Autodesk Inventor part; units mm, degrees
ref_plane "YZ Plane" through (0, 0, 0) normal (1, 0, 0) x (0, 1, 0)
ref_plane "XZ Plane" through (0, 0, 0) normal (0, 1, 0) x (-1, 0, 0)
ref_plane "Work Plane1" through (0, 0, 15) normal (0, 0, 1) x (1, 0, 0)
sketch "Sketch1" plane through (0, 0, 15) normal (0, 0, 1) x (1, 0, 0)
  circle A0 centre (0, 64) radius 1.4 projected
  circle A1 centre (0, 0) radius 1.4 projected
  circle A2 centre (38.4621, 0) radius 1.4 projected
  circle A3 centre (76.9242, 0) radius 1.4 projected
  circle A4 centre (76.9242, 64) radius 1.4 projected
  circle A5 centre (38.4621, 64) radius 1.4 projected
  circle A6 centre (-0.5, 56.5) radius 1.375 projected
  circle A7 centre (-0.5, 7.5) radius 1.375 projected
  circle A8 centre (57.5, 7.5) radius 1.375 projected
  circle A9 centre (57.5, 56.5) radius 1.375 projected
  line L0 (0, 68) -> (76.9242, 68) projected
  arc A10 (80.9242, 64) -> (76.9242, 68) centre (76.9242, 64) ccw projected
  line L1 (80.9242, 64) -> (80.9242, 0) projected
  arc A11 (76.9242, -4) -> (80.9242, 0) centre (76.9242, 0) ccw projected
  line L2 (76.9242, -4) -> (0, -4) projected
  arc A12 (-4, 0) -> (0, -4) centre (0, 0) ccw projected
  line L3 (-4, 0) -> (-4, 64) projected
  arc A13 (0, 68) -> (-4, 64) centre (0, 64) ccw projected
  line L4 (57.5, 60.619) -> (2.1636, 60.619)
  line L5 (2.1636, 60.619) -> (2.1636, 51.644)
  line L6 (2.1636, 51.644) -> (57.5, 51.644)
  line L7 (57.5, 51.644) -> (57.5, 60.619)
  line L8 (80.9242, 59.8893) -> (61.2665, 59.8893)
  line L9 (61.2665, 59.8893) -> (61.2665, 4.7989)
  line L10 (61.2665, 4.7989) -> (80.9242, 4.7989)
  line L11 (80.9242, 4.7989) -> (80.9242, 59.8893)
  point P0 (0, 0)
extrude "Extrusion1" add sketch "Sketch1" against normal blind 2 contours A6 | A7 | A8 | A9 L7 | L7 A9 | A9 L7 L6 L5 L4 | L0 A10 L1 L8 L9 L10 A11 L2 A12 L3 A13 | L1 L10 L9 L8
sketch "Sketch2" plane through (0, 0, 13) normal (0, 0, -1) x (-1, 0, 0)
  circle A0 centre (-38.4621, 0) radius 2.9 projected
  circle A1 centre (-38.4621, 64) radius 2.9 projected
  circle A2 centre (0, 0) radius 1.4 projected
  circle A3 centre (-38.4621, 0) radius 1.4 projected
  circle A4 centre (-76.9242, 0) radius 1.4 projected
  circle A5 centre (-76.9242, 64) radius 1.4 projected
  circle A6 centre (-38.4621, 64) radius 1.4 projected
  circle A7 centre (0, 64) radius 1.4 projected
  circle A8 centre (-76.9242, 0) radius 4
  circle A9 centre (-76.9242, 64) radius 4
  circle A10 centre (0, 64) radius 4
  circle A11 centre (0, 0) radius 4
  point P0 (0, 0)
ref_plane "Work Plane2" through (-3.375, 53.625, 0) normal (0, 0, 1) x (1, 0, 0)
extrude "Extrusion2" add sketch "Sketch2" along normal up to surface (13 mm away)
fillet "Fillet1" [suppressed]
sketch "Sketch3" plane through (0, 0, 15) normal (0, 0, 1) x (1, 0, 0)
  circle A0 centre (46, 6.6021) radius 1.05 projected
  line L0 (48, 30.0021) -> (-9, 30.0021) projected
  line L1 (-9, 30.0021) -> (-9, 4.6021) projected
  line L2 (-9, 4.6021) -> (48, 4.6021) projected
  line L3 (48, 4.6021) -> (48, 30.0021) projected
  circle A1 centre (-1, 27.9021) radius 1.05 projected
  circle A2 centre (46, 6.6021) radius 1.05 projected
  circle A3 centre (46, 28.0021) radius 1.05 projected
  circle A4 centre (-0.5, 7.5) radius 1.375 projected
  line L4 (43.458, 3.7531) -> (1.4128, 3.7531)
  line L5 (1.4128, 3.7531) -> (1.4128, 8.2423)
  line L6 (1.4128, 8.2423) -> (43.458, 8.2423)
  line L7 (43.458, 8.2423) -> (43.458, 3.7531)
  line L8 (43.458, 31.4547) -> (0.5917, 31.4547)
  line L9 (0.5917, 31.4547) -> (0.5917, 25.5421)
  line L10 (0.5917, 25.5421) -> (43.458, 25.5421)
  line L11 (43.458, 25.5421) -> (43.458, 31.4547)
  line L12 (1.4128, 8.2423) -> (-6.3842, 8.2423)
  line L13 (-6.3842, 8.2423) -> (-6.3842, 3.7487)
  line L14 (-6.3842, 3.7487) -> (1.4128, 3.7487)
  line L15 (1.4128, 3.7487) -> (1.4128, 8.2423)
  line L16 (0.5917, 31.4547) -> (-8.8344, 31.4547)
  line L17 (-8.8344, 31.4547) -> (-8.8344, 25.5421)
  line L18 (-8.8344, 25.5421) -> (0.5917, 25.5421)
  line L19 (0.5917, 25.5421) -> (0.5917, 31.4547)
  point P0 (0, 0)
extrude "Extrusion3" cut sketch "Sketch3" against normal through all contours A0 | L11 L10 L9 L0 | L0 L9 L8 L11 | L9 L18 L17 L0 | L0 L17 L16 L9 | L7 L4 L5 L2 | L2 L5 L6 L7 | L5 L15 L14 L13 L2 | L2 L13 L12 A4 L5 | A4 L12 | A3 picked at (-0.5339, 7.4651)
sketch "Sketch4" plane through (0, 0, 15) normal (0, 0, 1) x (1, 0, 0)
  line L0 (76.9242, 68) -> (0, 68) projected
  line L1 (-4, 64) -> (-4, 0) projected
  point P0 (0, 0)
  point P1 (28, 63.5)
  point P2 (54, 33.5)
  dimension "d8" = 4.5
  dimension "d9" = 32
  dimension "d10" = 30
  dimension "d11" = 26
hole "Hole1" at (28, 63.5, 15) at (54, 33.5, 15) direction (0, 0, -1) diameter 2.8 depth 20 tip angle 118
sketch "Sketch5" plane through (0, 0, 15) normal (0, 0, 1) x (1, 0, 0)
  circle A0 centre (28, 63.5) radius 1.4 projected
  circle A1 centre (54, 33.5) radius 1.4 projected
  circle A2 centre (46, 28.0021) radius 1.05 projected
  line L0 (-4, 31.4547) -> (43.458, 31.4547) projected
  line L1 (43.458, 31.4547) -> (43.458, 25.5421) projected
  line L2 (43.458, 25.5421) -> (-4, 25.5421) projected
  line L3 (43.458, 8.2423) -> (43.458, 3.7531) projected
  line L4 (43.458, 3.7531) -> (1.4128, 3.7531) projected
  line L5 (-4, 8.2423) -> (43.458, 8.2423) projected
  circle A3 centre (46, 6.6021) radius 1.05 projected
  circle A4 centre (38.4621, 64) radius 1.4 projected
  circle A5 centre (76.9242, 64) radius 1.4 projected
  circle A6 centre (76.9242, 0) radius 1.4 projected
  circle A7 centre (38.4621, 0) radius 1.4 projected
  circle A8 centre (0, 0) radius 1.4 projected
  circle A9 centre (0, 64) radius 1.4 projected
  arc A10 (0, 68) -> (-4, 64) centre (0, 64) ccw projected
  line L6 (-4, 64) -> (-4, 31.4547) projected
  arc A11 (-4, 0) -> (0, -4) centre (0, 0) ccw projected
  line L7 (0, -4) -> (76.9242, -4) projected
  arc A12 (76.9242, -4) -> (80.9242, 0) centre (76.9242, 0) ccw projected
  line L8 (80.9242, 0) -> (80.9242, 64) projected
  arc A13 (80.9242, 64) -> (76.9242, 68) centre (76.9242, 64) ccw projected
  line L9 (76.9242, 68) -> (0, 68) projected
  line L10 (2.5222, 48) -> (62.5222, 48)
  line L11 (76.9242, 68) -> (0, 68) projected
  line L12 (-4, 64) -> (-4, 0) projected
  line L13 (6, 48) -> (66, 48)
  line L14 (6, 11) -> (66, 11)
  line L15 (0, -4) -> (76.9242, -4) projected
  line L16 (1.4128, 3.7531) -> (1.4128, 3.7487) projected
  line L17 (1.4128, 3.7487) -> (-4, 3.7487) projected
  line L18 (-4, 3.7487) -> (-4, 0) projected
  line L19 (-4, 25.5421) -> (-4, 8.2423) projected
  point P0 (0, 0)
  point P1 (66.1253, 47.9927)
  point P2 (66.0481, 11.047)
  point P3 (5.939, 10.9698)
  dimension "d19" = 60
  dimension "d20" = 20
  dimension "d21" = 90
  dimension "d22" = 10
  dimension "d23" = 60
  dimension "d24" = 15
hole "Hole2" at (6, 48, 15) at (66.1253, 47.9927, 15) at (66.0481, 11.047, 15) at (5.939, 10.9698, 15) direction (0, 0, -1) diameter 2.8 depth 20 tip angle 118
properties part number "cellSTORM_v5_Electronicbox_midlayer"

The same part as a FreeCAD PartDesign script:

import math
import FreeCAD as App
import Part
import Sketcher
from FreeCAD import Vector


def add_polygon(sketch, points):
    """Adds a closed chain of lines whose ends are joined by coincident constraints."""
    first, n = sketch.GeometryCount, len(points)
    for a, b in zip(points, points[1:] + points[:1]):
        sketch.addGeometry(Part.LineSegment(App.Vector(*a, 0), App.Vector(*b, 0)), False)
    for i in range(n):
        sketch.addConstraint(Sketcher.Constraint("Coincident", first + i, 2, first + (i + 1) % n, 1))

doc = App.newDocument("Part")
params = doc.addObject("Spreadsheet::Sheet", "Params")
for row, (alias, value) in enumerate([
    ("sketch1_radius", "4 mm"),
    ("sketch1_diameter", "2.8 mm"),
    ("sketch1_height", "64 mm"),
    ("pad1_length", "2 mm"),
    ("sketch2_diameter", "8 mm"),
    ("sketch2_diameter2", "5.8 mm"),
    ("sketch2_diameter3", "2.8 mm"),
    ("pad2_length", "13 mm"),
    ("sketch3_diameter", "2.1 mm"),
    ("sketch4_diameter", "2.8 mm"),
    ("hole_diameter", "2.8 mm"),
    ("hole_depth", "20 mm"),
    ("sketch5_diameter", "2.8 mm"),
    ("hole2_diameter", "2.8 mm"),
    ("hole2_depth", "20 mm"),
], start=1):
    params.set(f"A{row}", alias)
    params.set(f"B{row}", "=" + value)
    params.setAlias(f"B{row}", alias)

body = doc.addObject("PartDesign::Body", "Body")
body.AllowCompound = True

# Sketch on XY plane
sketch1 = body.newObject("Sketcher::SketchObject", "Sketch")
sketch1.AttachmentSupport = (doc.getObject("XY_Plane"), [""])
sketch1.MapMode = "FlatFace"
sketch1.AttachmentOffset = App.Placement(Vector(0, 0, 15), App.Rotation())
sketch1.addGeometry(Part.LineSegment(Vector(76.9242, 68, 0), Vector(0, 68, 0)), False)
sketch1.addGeometry(Part.ArcOfCircle(Part.Circle(Vector(0, 64, 0), Vector(0, 0, 1), 4), math.radians(90), math.radians(180)), False)
sketch1.addGeometry(Part.LineSegment(Vector(-4, 64, 0), Vector(-4, 0, 0)), False)
sketch1.addGeometry(Part.ArcOfCircle(Part.Circle(Vector(0, 0, 0), Vector(0, 0, 1), 4), math.radians(180), math.radians(270)), False)
sketch1.addGeometry(Part.LineSegment(Vector(0, -4, 0), Vector(76.9242, -4, 0)), False)
sketch1.addGeometry(Part.ArcOfCircle(Part.Circle(Vector(76.9242, 0, 0), Vector(0, 0, 1), 4), math.radians(-90), math.radians(0)), False)
sketch1.addGeometry(Part.LineSegment(Vector(80.9242, 0, 0), Vector(80.9242, 64, 0)), False)
sketch1.addGeometry(Part.ArcOfCircle(Part.Circle(Vector(76.9242, 64, 0), Vector(0, 0, 1), 4), math.radians(0), math.radians(90)), False)
sketch1.addGeometry(Part.Circle(Vector(0, 0, 0), Vector(0, 0, 1), 1.4), False)
sketch1.addGeometry(Part.Circle(Vector(38.4621, 0, 0), Vector(0, 0, 1), 1.4), False)
sketch1.addGeometry(Part.Circle(Vector(76.9242, 0, 0), Vector(0, 0, 1), 1.4), False)
sketch1.addGeometry(Part.Circle(Vector(76.9242, 64, 0), Vector(0, 0, 1), 1.4), False)
sketch1.addGeometry(Part.Circle(Vector(0, 64, 0), Vector(0, 0, 1), 1.4), False)
sketch1.addGeometry(Part.Circle(Vector(38.4621, 64, 0), Vector(0, 0, 1), 1.4), False)
sketch1.addConstraint(Sketcher.Constraint("Tangent", 0, 2, 1, 1))
sketch1.addConstraint(Sketcher.Constraint("Tangent", 1, 2, 2, 1))
sketch1.addConstraint(Sketcher.Constraint("Tangent", 2, 2, 3, 1))
sketch1.addConstraint(Sketcher.Constraint("Tangent", 3, 2, 4, 1))
sketch1.addConstraint(Sketcher.Constraint("Tangent", 4, 2, 5, 1))
sketch1.addConstraint(Sketcher.Constraint("Tangent", 5, 2, 6, 1))
sketch1.addConstraint(Sketcher.Constraint("Tangent", 6, 2, 7, 1))
sketch1.addConstraint(Sketcher.Constraint("Tangent", 7, 2, 0, 1))
sketch1.addConstraint(Sketcher.Constraint("Horizontal", 0))
sketch1.addConstraint(Sketcher.Constraint("Vertical", 2))
sketch1.addConstraint(Sketcher.Constraint("Horizontal", 4))
sketch1.addConstraint(Sketcher.Constraint("Vertical", 6))
sketch1.addConstraint(Sketcher.Constraint("Coincident", 3, 3, -1, 1))
sketch1.addConstraint(Sketcher.Constraint("Coincident", 8, 3, -1, 1))
sketch1.addConstraint(Sketcher.Constraint("Coincident", 10, 3, 5, 3))
sketch1.addConstraint(Sketcher.Constraint("Coincident", 11, 3, 7, 3))
sketch1.addConstraint(Sketcher.Constraint("Coincident", 12, 3, 1, 3))
sketch1.addConstraint(Sketcher.Constraint("Equal", 1, 3))
sketch1.addConstraint(Sketcher.Constraint("Equal", 3, 5))
sketch1.addConstraint(Sketcher.Constraint("Equal", 5, 7))
sketch1.addConstraint(Sketcher.Constraint("Equal", 8, 9))
sketch1.addConstraint(Sketcher.Constraint("Equal", 9, 10))
sketch1.addConstraint(Sketcher.Constraint("Equal", 10, 11))
sketch1.addConstraint(Sketcher.Constraint("Equal", 11, 12))
sketch1.addConstraint(Sketcher.Constraint("Equal", 12, 13))
sketch1.addConstraint(Sketcher.Constraint("PointOnObject", 9, 3, -1))
sketch1.addConstraint(Sketcher.Constraint("Horizontal", 12, 3, 13, 3))
sketch1.addConstraint(Sketcher.Constraint("Vertical", 9, 3, 13, 3))
sketch1.addConstraint(Sketcher.Constraint("Radius", 1, 4.0))
sketch1.addConstraint(Sketcher.Constraint("Diameter", 8, 2.8))
sketch1.addConstraint(Sketcher.Constraint("DistanceY", 2, 2, 2, 1, 64.0))
sketch1.addConstraint(Sketcher.Constraint("DistanceX", 0, 2, 0, 1, 76.9242))
sketch1.addConstraint(Sketcher.Constraint("DistanceX", -1, 1, 9, 3, 38.462))
sketch1.setExpression("Constraints[28]", "Params.sketch1_radius")
sketch1.setExpression("Constraints[29]", "Params.sketch1_diameter")
sketch1.setExpression("Constraints[30]", "Params.sketch1_height")
pad1 = body.newObject("PartDesign::Pad", "Pad")
pad1.Profile = sketch1
pad1.setExpression("Length", "Params.pad1_length")
pad1.Reversed = True

# Sketch on XY plane
sketch2 = body.newObject("Sketcher::SketchObject", "Sketch001")
sketch2.AttachmentSupport = (doc.getObject("XY_Plane"), [""])
sketch2.MapMode = "FlatFace"
sketch2.AttachmentOffset = App.Placement(Vector(0, 0, 13), App.Rotation())
sketch2.addGeometry(Part.Circle(Vector(38.4621, 0, 0), Vector(0, 0, 1), 2.9), False)
sketch2.addGeometry(Part.Circle(Vector(38.4621, 0, 0), Vector(0, 0, 1), 1.4), False)
sketch2.addGeometry(Part.Circle(Vector(38.4621, 64, 0), Vector(0, 0, 1), 2.9), False)
sketch2.addGeometry(Part.Circle(Vector(38.4621, 64, 0), Vector(0, 0, 1), 1.4), False)
sketch2.addGeometry(Part.Circle(Vector(76.9242, 0, 0), Vector(0, 0, 1), 4), False)
sketch2.addGeometry(Part.Circle(Vector(76.9242, 0, 0), Vector(0, 0, 1), 1.4), False)
sketch2.addGeometry(Part.Circle(Vector(76.9242, 64, 0), Vector(0, 0, 1), 4), False)
sketch2.addGeometry(Part.Circle(Vector(76.9242, 64, 0), Vector(0, 0, 1), 1.4), False)
sketch2.addGeometry(Part.Circle(Vector(0, 64, 0), Vector(0, 0, 1), 4), False)
sketch2.addGeometry(Part.Circle(Vector(0, 64, 0), Vector(0, 0, 1), 1.4), False)
sketch2.addGeometry(Part.Circle(Vector(0, 0, 0), Vector(0, 0, 1), 4), False)
sketch2.addGeometry(Part.Circle(Vector(0, 0, 0), Vector(0, 0, 1), 1.4), False)
sketch2.addConstraint(Sketcher.Constraint("Coincident", 10, 3, -1, 1))
sketch2.addConstraint(Sketcher.Constraint("Coincident", 11, 3, -1, 1))
sketch2.addConstraint(Sketcher.Constraint("Coincident", 1, 3, 0, 3))
sketch2.addConstraint(Sketcher.Constraint("Coincident", 3, 3, 2, 3))
sketch2.addConstraint(Sketcher.Constraint("Coincident", 5, 3, 4, 3))
sketch2.addConstraint(Sketcher.Constraint("Coincident", 7, 3, 6, 3))
sketch2.addConstraint(Sketcher.Constraint("Coincident", 9, 3, 8, 3))
sketch2.addConstraint(Sketcher.Constraint("Equal", 0, 2))
sketch2.addConstraint(Sketcher.Constraint("Equal", 1, 3))
sketch2.addConstraint(Sketcher.Constraint("Equal", 3, 5))
sketch2.addConstraint(Sketcher.Constraint("Equal", 4, 6))
sketch2.addConstraint(Sketcher.Constraint("Equal", 5, 7))
sketch2.addConstraint(Sketcher.Constraint("Equal", 6, 8))
sketch2.addConstraint(Sketcher.Constraint("Equal", 7, 9))
sketch2.addConstraint(Sketcher.Constraint("Equal", 8, 10))
sketch2.addConstraint(Sketcher.Constraint("Equal", 9, 11))
sketch2.addConstraint(Sketcher.Constraint("PointOnObject", 0, 3, -1))
sketch2.addConstraint(Sketcher.Constraint("PointOnObject", 4, 3, -1))
sketch2.addConstraint(Sketcher.Constraint("PointOnObject", 8, 3, -2))
sketch2.addConstraint(Sketcher.Constraint("Horizontal", 3, 3, 6, 3))
sketch2.addConstraint(Sketcher.Constraint("Horizontal", 7, 3, 8, 3))
sketch2.addConstraint(Sketcher.Constraint("Vertical", 1, 3, 2, 3))
sketch2.addConstraint(Sketcher.Constraint("Vertical", 5, 3, 6, 3))
sketch2.addConstraint(Sketcher.Constraint("Diameter", 4, 8.0))
sketch2.addConstraint(Sketcher.Constraint("Diameter", 0, 5.8))
sketch2.addConstraint(Sketcher.Constraint("Diameter", 1, 2.8))
sketch2.addConstraint(Sketcher.Constraint("DistanceY", -1, 1, 2, 3, 64.0))
sketch2.addConstraint(Sketcher.Constraint("DistanceX", -1, 1, 0, 3, 38.462))
sketch2.addConstraint(Sketcher.Constraint("DistanceX", 0, 3, 4, 3, 38.462))
sketch2.setExpression("Constraints[23]", "Params.sketch2_diameter")
sketch2.setExpression("Constraints[24]", "Params.sketch2_diameter2")
sketch2.setExpression("Constraints[25]", "Params.sketch2_diameter3")
pad2 = body.newObject("PartDesign::Pad", "Pad001")
pad2.Profile = sketch2
pad2.setExpression("Length", "Params.pad2_length")
pad2.Reversed = True

# Sketch on XY plane
sketch3 = body.newObject("Sketcher::SketchObject", "Sketch002")
sketch3.AttachmentSupport = (doc.getObject("XY_Plane"), [""])
sketch3.MapMode = "FlatFace"
sketch3.AttachmentOffset = App.Placement(Vector(0, 0, 15), App.Rotation())
sketch3.addGeometry(Part.Circle(Vector(46, 6.6021, 0), Vector(0, 0, 1), 1.05), False)  # 0
add_polygon(sketch3, [(43.458, 25.5421), (43.458, 31.4547), (-8.8344, 31.4547), (-8.8344, 25.5421)])  # lines 1-4
sketch3.addGeometry(Part.Circle(Vector(-1, 27.9021, 0), Vector(0, 0, 1), 1.05), False)  # 5
add_polygon(sketch3, [(43.458, 3.7531), (43.458, 8.2423), (-6.3842, 8.2423), (-6.3842, 3.7487), (1.4128, 3.7487), (1.4128, 3.7531)])  # lines 6-11
sketch3.addGeometry(Part.Circle(Vector(46, 28.0021, 0), Vector(0, 0, 1), 1.05), False)  # 12
sketch3.addConstraint(Sketcher.Constraint("Vertical", 1))
sketch3.addConstraint(Sketcher.Constraint("Horizontal", 2))
sketch3.addConstraint(Sketcher.Constraint("Vertical", 3))
sketch3.addConstraint(Sketcher.Constraint("Horizontal", 4))
sketch3.addConstraint(Sketcher.Constraint("Vertical", 6))
sketch3.addConstraint(Sketcher.Constraint("Horizontal", 7))
sketch3.addConstraint(Sketcher.Constraint("Vertical", 8))
sketch3.addConstraint(Sketcher.Constraint("Horizontal", 9))
sketch3.addConstraint(Sketcher.Constraint("Vertical", 10))
sketch3.addConstraint(Sketcher.Constraint("Horizontal", 11))
sketch3.addConstraint(Sketcher.Constraint("Equal", 0, 5))
sketch3.addConstraint(Sketcher.Constraint("Equal", 5, 12))
sketch3.addConstraint(Sketcher.Constraint("Vertical", 0, 3, 12, 3))
sketch3.addConstraint(Sketcher.Constraint("Vertical", 4, 2, 6, 2))
sketch3.addConstraint(Sketcher.Constraint("Diameter", 0, 2.1))
sketch3.addConstraint(Sketcher.Constraint("DistanceX", -1, 1, 0, 3, 46.0))
sketch3.addConstraint(Sketcher.Constraint("DistanceX", 5, 3, -1, 1, 1.0))
sketch3.addConstraint(Sketcher.Constraint("DistanceY", 0, 3, 5, 3, 21.3))
sketch3.addConstraint(Sketcher.Constraint("DistanceY", 0, 3, 12, 3, 21.4))
sketch3.addConstraint(Sketcher.Constraint("DistanceX", 9, 1, 9, 2, 7.797))
sketch3.addConstraint(Sketcher.Constraint("DistanceY", 3, 2, 5, 3, 2.36))
sketch3.addConstraint(Sketcher.Constraint("DistanceX", 2, 2, 2, 1, 52.2924))
sketch3.addConstraint(Sketcher.Constraint("DistanceX", 7, 2, 7, 1, 49.8422))
sketch3.addConstraint(Sketcher.Constraint("DistanceY", 1, 1, 1, 2, 5.9126))
sketch3.addConstraint(Sketcher.Constraint("DistanceY", 6, 1, 6, 2, 4.4892))
sketch3.addConstraint(Sketcher.Constraint("DistanceY", 8, 2, 8, 1, 4.4936))
sketch3.addConstraint(Sketcher.Constraint("DistanceY", -1, 1, 0, 3, 6.602))
sketch3.addConstraint(Sketcher.Constraint("DistanceX", -1, 1, 1, 2, 43.458))
sketch3.addConstraint(Sketcher.Constraint("DistanceY", -1, 1, 10, 2, 3.753))
sketch3.setExpression("Constraints[24]", "Params.sketch3_diameter")
pocket1 = body.newObject("PartDesign::Pocket", "Pocket")
pocket1.Profile = sketch3
pocket1.Type = "ThroughAll"

# Sketch on XY plane
sketch4 = body.newObject("Sketcher::SketchObject", "Sketch003")
sketch4.AttachmentSupport = (doc.getObject("XY_Plane"), [""])
sketch4.MapMode = "FlatFace"
sketch4.AttachmentOffset = App.Placement(Vector(0, 0, 15), App.Rotation())
sketch4.addGeometry(Part.Circle(Vector(28, 63.5, 0), Vector(0, 0, 1), 1.4), False)
sketch4.addGeometry(Part.Circle(Vector(54, 33.5, 0), Vector(0, 0, 1), 1.4), False)
sketch4.addConstraint(Sketcher.Constraint("Equal", 0, 1))
sketch4.addConstraint(Sketcher.Constraint("Diameter", 0, 2.8))
sketch4.addConstraint(Sketcher.Constraint("DistanceX", -1, 1, 0, 3, 28.0))
sketch4.addConstraint(Sketcher.Constraint("DistanceX", -1, 1, 1, 3, 54.0))
sketch4.addConstraint(Sketcher.Constraint("DistanceY", 1, 3, 0, 3, 30.0))
sketch4.addConstraint(Sketcher.Constraint("DistanceY", -1, 1, 0, 3, 63.5))
sketch4.setExpression("Constraints[1]", "Params.sketch4_diameter")
doc.recompute()
hole = body.newObject("PartDesign::Hole", "Hole")
hole.Profile = sketch4
hole.ThreadType = "None"
hole.setExpression("Diameter", "Params.hole_diameter")
hole.DepthType = "Dimension"
hole.setExpression("Depth", "Params.hole_depth")
hole.DrillPoint = "Angled"
hole.DrillPointAngle = 118

# Sketch on XY plane
sketch5 = body.newObject("Sketcher::SketchObject", "Sketch004")
sketch5.AttachmentSupport = (doc.getObject("XY_Plane"), [""])
sketch5.MapMode = "FlatFace"
sketch5.AttachmentOffset = App.Placement(Vector(0, 0, 15), App.Rotation())
sketch5.addGeometry(Part.Circle(Vector(6, 48, 0), Vector(0, 0, 1), 1.4), False)
sketch5.addGeometry(Part.Circle(Vector(66.1253, 47.9927, 0), Vector(0, 0, 1), 1.4), False)
sketch5.addGeometry(Part.Circle(Vector(66.0481, 11.047, 0), Vector(0, 0, 1), 1.4), False)
sketch5.addGeometry(Part.Circle(Vector(5.939, 10.9698, 0), Vector(0, 0, 1), 1.4), False)
sketch5.addConstraint(Sketcher.Constraint("Equal", 0, 1))
sketch5.addConstraint(Sketcher.Constraint("Equal", 1, 2))
sketch5.addConstraint(Sketcher.Constraint("Equal", 2, 3))
sketch5.addConstraint(Sketcher.Constraint("Diameter", 0, 2.8))
sketch5.addConstraint(Sketcher.Constraint("DistanceX", -1, 1, 0, 3, 6.0))
sketch5.addConstraint(Sketcher.Constraint("DistanceY", -1, 1, 0, 3, 48.0))
sketch5.addConstraint(Sketcher.Constraint("DistanceX", -1, 1, 2, 3, 66.048))
sketch5.addConstraint(Sketcher.Constraint("DistanceY", -1, 1, 2, 3, 11.047))
sketch5.addConstraint(Sketcher.Constraint("DistanceX", -1, 1, 3, 3, 5.939))
sketch5.addConstraint(Sketcher.Constraint("DistanceY", 3, 3, 1, 3, 37.023))
sketch5.addConstraint(Sketcher.Constraint("DistanceX", -1, 1, 1, 3, 66.1253))
sketch5.addConstraint(Sketcher.Constraint("DistanceY", -1, 1, 1, 3, 47.9927))
sketch5.setExpression("Constraints[3]", "Params.sketch5_diameter")
doc.recompute()
hole2 = body.newObject("PartDesign::Hole", "Hole001")
hole2.Profile = sketch5
hole2.ThreadType = "None"
hole2.setExpression("Diameter", "Params.hole2_diameter")
hole2.DepthType = "Dimension"
hole2.setExpression("Depth", "Params.hole2_depth")
hole2.DrillPoint = "Angled"
hole2.DrillPointAngle = 118

doc.recompute()
